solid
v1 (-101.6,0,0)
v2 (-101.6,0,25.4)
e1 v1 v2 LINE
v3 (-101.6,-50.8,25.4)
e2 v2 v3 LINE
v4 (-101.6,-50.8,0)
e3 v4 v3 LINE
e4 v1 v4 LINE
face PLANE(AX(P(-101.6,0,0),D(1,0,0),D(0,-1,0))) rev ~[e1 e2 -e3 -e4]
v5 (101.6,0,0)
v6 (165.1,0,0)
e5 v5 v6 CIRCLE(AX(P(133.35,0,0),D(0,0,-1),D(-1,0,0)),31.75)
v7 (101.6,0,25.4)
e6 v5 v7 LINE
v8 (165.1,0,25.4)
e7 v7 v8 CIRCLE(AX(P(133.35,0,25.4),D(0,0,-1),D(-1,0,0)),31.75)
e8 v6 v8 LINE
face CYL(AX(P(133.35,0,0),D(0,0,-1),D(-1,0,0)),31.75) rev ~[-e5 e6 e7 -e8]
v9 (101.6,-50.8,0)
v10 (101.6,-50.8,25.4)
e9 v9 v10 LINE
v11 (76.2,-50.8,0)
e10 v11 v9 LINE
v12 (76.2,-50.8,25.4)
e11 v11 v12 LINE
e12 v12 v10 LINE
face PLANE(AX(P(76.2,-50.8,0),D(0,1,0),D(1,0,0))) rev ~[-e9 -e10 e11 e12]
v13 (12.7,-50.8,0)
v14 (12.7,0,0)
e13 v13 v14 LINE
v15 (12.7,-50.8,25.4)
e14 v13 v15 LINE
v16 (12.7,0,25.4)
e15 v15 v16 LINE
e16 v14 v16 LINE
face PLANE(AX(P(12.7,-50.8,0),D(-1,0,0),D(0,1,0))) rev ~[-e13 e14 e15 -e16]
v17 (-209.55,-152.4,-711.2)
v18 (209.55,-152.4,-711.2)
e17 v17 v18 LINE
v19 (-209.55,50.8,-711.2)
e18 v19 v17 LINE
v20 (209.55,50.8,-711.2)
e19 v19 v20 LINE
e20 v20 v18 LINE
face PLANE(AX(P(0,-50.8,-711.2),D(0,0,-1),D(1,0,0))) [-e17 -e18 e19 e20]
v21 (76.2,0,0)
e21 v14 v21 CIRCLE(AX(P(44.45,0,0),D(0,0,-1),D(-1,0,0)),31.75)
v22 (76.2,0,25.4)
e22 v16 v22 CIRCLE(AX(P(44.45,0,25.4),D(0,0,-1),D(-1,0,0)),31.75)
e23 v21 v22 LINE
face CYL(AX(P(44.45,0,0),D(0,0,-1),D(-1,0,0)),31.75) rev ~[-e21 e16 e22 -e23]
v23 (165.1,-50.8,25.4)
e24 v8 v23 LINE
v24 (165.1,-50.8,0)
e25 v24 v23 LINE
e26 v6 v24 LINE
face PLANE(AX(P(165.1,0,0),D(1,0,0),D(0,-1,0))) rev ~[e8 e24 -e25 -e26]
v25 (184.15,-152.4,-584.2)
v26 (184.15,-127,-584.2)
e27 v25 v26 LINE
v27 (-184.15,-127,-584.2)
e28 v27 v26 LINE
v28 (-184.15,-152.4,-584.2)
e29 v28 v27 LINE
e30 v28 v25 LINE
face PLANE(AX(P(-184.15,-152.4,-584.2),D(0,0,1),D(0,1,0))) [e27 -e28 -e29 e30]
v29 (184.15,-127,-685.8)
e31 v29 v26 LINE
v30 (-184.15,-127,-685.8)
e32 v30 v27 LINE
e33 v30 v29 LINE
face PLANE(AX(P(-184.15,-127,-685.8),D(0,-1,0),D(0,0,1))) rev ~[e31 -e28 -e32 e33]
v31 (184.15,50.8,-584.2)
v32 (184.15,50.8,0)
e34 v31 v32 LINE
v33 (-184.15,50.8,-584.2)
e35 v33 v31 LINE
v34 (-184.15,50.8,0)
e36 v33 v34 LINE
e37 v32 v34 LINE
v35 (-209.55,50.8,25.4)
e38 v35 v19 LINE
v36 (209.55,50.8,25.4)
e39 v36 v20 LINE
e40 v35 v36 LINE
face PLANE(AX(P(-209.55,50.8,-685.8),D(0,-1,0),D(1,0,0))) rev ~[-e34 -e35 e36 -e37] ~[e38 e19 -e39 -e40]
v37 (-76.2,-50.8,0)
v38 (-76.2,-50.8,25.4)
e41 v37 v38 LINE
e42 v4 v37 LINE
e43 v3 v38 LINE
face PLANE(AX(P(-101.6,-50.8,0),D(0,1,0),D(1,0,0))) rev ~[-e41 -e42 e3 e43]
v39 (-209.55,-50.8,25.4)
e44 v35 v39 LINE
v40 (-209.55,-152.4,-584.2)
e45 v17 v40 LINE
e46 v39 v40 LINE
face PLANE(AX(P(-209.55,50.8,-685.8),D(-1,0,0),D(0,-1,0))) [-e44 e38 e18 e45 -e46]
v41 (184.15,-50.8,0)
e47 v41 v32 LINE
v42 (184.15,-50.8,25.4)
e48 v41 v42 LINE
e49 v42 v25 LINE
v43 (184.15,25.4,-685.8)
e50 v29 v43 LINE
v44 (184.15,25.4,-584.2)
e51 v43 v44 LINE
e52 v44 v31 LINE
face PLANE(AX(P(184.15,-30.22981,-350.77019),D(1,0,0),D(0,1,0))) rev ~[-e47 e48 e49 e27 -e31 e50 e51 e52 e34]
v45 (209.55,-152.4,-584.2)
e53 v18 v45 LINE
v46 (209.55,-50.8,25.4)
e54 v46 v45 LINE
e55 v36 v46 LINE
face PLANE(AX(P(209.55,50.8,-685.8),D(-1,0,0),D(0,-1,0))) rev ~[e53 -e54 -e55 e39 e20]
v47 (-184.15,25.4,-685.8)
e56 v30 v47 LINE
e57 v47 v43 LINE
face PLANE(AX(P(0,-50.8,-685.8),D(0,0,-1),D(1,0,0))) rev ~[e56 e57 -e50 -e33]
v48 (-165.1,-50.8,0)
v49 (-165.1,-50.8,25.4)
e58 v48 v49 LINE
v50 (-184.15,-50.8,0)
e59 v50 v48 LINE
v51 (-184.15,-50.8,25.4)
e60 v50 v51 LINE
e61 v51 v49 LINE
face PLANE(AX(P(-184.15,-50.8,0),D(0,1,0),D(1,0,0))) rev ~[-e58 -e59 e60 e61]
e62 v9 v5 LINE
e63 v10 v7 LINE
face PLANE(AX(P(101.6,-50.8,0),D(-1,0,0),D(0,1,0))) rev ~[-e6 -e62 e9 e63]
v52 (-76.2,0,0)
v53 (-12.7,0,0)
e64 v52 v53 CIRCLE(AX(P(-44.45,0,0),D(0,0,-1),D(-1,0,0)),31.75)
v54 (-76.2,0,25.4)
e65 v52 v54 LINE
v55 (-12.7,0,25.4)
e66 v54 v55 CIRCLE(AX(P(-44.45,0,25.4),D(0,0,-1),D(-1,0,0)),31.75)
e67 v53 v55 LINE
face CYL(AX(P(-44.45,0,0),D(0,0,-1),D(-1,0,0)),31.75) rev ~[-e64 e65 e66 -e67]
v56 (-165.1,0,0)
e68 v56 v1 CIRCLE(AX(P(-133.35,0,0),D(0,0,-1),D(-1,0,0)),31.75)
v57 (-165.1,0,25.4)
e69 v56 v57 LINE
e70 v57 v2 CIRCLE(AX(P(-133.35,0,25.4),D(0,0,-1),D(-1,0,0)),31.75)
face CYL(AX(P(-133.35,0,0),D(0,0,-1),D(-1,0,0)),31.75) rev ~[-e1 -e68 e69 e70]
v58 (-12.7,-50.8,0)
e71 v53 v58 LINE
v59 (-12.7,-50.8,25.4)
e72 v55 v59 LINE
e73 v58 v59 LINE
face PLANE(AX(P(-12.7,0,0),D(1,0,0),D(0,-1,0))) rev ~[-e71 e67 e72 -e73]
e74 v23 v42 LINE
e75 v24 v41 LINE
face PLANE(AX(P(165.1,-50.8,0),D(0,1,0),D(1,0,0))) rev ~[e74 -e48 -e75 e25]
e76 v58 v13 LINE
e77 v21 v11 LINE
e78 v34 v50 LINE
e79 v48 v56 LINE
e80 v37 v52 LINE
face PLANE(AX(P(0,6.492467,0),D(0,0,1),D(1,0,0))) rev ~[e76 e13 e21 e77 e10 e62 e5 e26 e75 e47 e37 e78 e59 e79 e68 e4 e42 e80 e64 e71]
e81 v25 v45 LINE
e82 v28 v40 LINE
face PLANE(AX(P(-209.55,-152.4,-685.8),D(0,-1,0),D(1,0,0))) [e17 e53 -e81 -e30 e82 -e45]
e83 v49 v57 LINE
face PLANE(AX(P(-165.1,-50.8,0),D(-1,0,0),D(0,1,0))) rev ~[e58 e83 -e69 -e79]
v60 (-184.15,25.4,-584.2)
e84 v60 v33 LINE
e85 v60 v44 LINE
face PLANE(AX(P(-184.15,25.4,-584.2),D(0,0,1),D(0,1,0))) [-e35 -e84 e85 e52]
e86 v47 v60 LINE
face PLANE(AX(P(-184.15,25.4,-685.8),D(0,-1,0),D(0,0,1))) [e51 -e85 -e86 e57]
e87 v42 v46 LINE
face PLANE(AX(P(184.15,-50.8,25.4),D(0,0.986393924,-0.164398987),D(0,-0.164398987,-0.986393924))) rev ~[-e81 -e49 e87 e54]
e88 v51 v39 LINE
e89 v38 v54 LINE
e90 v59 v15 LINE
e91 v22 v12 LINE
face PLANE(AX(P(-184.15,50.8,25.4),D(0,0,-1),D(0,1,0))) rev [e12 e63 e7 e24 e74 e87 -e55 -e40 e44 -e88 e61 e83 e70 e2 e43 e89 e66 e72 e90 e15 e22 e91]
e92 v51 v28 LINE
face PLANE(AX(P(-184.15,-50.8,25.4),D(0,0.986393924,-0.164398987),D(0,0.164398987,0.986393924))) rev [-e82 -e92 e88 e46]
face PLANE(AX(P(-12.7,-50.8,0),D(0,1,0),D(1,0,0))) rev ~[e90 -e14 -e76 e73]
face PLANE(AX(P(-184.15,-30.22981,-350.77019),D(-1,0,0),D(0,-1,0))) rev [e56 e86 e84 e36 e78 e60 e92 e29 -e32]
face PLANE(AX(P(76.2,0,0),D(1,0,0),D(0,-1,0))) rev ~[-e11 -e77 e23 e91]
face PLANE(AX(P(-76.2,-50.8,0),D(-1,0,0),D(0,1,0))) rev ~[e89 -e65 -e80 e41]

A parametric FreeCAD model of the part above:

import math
import FreeCAD as App
import Part
import Sketcher
Q = App.Units.Quantity


def add_polygon(sketch, points):
    """Adds a closed chain of lines whose ends are joined by coincident constraints."""
    first, n = sketch.GeometryCount, len(points)
    for a, b in zip(points, points[1:] + points[:1]):
        sketch.addGeometry(Part.LineSegment(App.Vector(*a, 0), App.Vector(*b, 0)), False)
    for i in range(n):
        sketch.addConstraint(Sketcher.Constraint("Coincident", first + i, 2, first + (i + 1) % n, 1))

doc = App.newDocument("Part")
body = doc.addObject("PartDesign::Body", "Body")

sketch1 = body.newObject("Sketcher::SketchObject", "Sketch")
sketch1.AttachmentSupport = (doc.getObject("XY_Plane"), [""])
sketch1.MapMode = "FlatFace"
sketch1.addGeometry([
    Part.LineSegment(App.Vector(184, -51, 0), App.Vector(184, 51, 0)),
    Part.LineSegment(App.Vector(184, 51, 0), App.Vector(-184, 51, 0)),
    Part.LineSegment(App.Vector(-184, 51, 0), App.Vector(-184, -51, 0)),
    Part.LineSegment(App.Vector(-184, -51, 0), App.Vector(-165, -51, 0)),
    Part.LineSegment(App.Vector(-165, -51, 0), App.Vector(-165, 0, 0)),
    Part.ArcOfCircle(Part.Circle(App.Vector(-133, 0, 0), App.Vector(0, 0, 1), 32), math.radians(0), math.radians(180)),
    Part.LineSegment(App.Vector(-102, 0, 0), App.Vector(-102, -51, 0)),
    Part.LineSegment(App.Vector(-102, -51, 0), App.Vector(-76, -51, 0)),
    Part.LineSegment(App.Vector(-76, -51, 0), App.Vector(-76, 0, 0)),
    Part.ArcOfCircle(Part.Circle(App.Vector(-44, 0, 0), App.Vector(0, 0, 1), 32), math.radians(0), math.radians(180)),
    Part.LineSegment(App.Vector(-13, 0, 0), App.Vector(-13, -51, 0)),
    Part.LineSegment(App.Vector(-13, -51, 0), App.Vector(13, -51, 0)),
    Part.LineSegment(App.Vector(13, -51, 0), App.Vector(13, 0, 0)),
    Part.ArcOfCircle(Part.Circle(App.Vector(44, 0, 0), App.Vector(0, 0, 1), 32), math.radians(0), math.radians(180)),
    Part.LineSegment(App.Vector(76, 0, 0), App.Vector(76, -51, 0)),
    Part.LineSegment(App.Vector(76, -51, 0), App.Vector(102, -51, 0)),
    Part.LineSegment(App.Vector(102, -51, 0), App.Vector(102, 0, 0)),
    Part.ArcOfCircle(Part.Circle(App.Vector(133, 0, 0), App.Vector(0, 0, 1), 32), math.radians(0), math.radians(180)),
    Part.LineSegment(App.Vector(165, 0, 0), App.Vector(165, -51, 0)),
    Part.LineSegment(App.Vector(165, -51, 0), App.Vector(184, -51, 0)),
], False)
sketch1.addConstraint([
    Sketcher.Constraint("Coincident", 0, 2, 1, 1),
    Sketcher.Constraint("Coincident", 1, 2, 2, 1),
    Sketcher.Constraint("Coincident", 2, 2, 3, 1),
    Sketcher.Constraint("Coincident", 3, 2, 4, 1),
    Sketcher.Constraint("Tangent", 4, 2, 5, 2),
    Sketcher.Constraint("Tangent", 5, 1, 6, 1),
    Sketcher.Constraint("Coincident", 6, 2, 7, 1),
    Sketcher.Constraint("Coincident", 7, 2, 8, 1),
    Sketcher.Constraint("Tangent", 8, 2, 9, 2),
    Sketcher.Constraint("Tangent", 9, 1, 10, 1),
    Sketcher.Constraint("Coincident", 10, 2, 11, 1),
    Sketcher.Constraint("Coincident", 11, 2, 12, 1),
    Sketcher.Constraint("Tangent", 12, 2, 13, 2),
    Sketcher.Constraint("Tangent", 13, 1, 14, 1),
    Sketcher.Constraint("Coincident", 14, 2, 15, 1),
    Sketcher.Constraint("Coincident", 15, 2, 16, 1),
    Sketcher.Constraint("Tangent", 16, 2, 17, 2),
    Sketcher.Constraint("Tangent", 17, 1, 18, 1),
    Sketcher.Constraint("Coincident", 18, 2, 19, 1),
    Sketcher.Constraint("Coincident", 19, 2, 0, 1),
    Sketcher.Constraint("Vertical", 0),
    Sketcher.Constraint("Horizontal", 1),
    Sketcher.Constraint("Vertical", 2),
    Sketcher.Constraint("Horizontal", 3),
    Sketcher.Constraint("Vertical", 4),
    Sketcher.Constraint("Vertical", 6),
    Sketcher.Constraint("Horizontal", 7),
    Sketcher.Constraint("Vertical", 8),
    Sketcher.Constraint("Vertical", 10),
    Sketcher.Constraint("Horizontal", 11),
    Sketcher.Constraint("Vertical", 12),
    Sketcher.Constraint("Vertical", 14),
    Sketcher.Constraint("Horizontal", 15),
    Sketcher.Constraint("Vertical", 16),
    Sketcher.Constraint("Vertical", 18),
    Sketcher.Constraint("Horizontal", 19),
    Sketcher.Constraint("Equal", 5, 9),
    Sketcher.Constraint("Equal", 9, 13),
    Sketcher.Constraint("Equal", 13, 17),
    Sketcher.Constraint("Symmetric", 9, 3, 13, 3, -1, 1),
    Sketcher.Constraint("Symmetric", 5, 3, 17, 3, -1, 1),
    Sketcher.Constraint("Symmetric", 0, 2, 2, 2, -1, 1),
    Sketcher.Constraint("PointOnObject", 5, 3, -1),
    Sketcher.Constraint("PointOnObject", 9, 3, -1),
    Sketcher.Constraint("Horizontal", 3, 2, 6, 2),
    Sketcher.Constraint("Horizontal", 7, 2, 10, 2),
    Sketcher.Constraint("Horizontal", 11, 2, 14, 2),
    Sketcher.Constraint("Horizontal", 15, 2, 18, 2),
    Sketcher.Constraint("Equal", 7, 11),
    Sketcher.Constraint("DistanceX", 7, 1, 7, 2, Q("1 in")),
    Sketcher.Constraint("DistanceY", 0, 1, 0, 2, Q("4 in")),
    Sketcher.Constraint("Radius", 5, Q("1.25 in")),
    Sketcher.Constraint("DistanceX", 1, 2, 1, 1, Q("14.5 in")),
])
pad1 = body.newObject("PartDesign::Pad", "Pad")
pad1.Profile = sketch1
pad1.Length = Q("1 in")

sketch2 = body.newObject("Sketcher::SketchObject", "Sketch001")
sketch2.AttachmentSupport = (doc.getObject("YZ_Plane"), [""])
sketch2.MapMode = "FlatFace"
sketch2.AttachmentOffset = App.Placement(App.Vector(0, 0, 7.25 * 25.4), App.Rotation())
add_polygon(sketch2, [(51, -686), (51, 25), (-51, 25), (-152, -584), (-152, -686)])
sketch2.addConstraint([
    Sketcher.Constraint("Vertical", 0),
    Sketcher.Constraint("Horizontal", 1),
    Sketcher.Constraint("Vertical", 3),
    Sketcher.Constraint("Horizontal", 4),
    Sketcher.Constraint("Equal", 1, 3),
    Sketcher.Constraint("DistanceX", 1, 2, 1, 1, Q("4 in")),
    Sketcher.Constraint("DistanceX", 4, 1, 4, 2, Q("8 in")),
    Sketcher.Constraint("DistanceY", 0, 1, 0, 2, Q("28 in")),
    Sketcher.Constraint("DistanceX", -1, 1, 0, 2, Q("2 in")),
    Sketcher.Constraint("DistanceY", -1, 1, 0, 2, Q("1 in")),
])
pad2 = body.newObject("PartDesign::Pad", "Pad001")
pad2.Profile = sketch2
pad2.Length = Q("1 in")
body2 = doc.addObject("PartDesign::Body", "Body001")
doc.recompute()

body2.BaseFeature = body
doc.recompute()

mirroring = doc.addObject("Part::Mirroring", "Mirroring")
mirroring.Source = body
mirroring.Base = App.Vector(0, 0, 0)
mirroring.Normal = App.Vector(1, 0, 0)
body3 = doc.addObject("PartDesign::Body", "Body002")
body3.BaseFeature = mirroring
boolean = body2.newObject("PartDesign::Boolean", "Boolean")
boolean.Type = "Fuse"
boolean.addObjects([body3])
doc.recompute()

sketch3 = body2.newObject("Sketcher::SketchObject", "Sketch002")
sketch3.AttachmentSupport = (doc.getObject("YZ_Plane001"), [""])
sketch3.MapMode = "FlatFace"
sketch3.AttachmentOffset = App.Placement(App.Vector(0, 0, -7.25 * 25.4), App.Rotation())
add_polygon(sketch3, [(-152, -584), (-152, -686), (-127, -686), (-127, -584)])
add_polygon(sketch3, [(25, -584), (25, -686), (51, -686), (51, -584)])
sketch3.addConstraint([
    Sketcher.Constraint("Vertical", 0),
    Sketcher.Constraint("Horizontal", 1),
    Sketcher.Constraint("Vertical", 2),
    Sketcher.Constraint("Horizontal", 3),
    Sketcher.Constraint("Vertical", 4),
    Sketcher.Constraint("Horizontal", 5),
    Sketcher.Constraint("Vertical", 6),
    Sketcher.Constraint("Horizontal", 7),
    Sketcher.Constraint("Horizontal", 1, 2, 4, 2),
    Sketcher.Constraint("Horizontal", 3, 2, 6, 2),
    Sketcher.Constraint("Equal", 3, 5),
    Sketcher.Constraint("DistanceX", 1, 1, 1, 2, Q("1 in")),
    Sketcher.Constraint("DistanceY", 0, 2, 0, 1, Q("4 in")),
    Sketcher.Constraint("DistanceX", 0, 2, -1, 1, Q("6 in")),
    Sketcher.Constraint("DistanceY", 0, 2, -1, 1, Q("27 in")),
    Sketcher.Constraint("DistanceX", -1, 1, 4, 2, Q("1 in")),
])
pad3 = body2.newObject("PartDesign::Pad", "Pad002")
pad3.Profile = sketch3
pad3.Type = "UpToLast"

sketch4 = body2.newObject("Sketcher::SketchObject", "Sketch003")
sketch4.AttachmentSupport = (doc.getObject("XY_Plane001"), [""])
sketch4.MapMode = "FlatFace"
sketch4.AttachmentOffset = App.Placement(App.Vector(0, 0, -27 * 25.4), App.Rotation())
add_polygon(sketch4, [(-210, -152), (-210, 51), (210, 51), (210, -152)])
sketch4.addConstraint([
    Sketcher.Constraint("Vertical", 0),
    Sketcher.Constraint("Horizontal", 1),
    Sketcher.Constraint("Vertical", 2),
    Sketcher.Constraint("Horizontal", 3),
    Sketcher.Constraint("DistanceY", 0, 1, 0, 2, Q("8 in")),
    Sketcher.Constraint("DistanceX", 1, 1, 1, 2, Q("16.5 in")),
    Sketcher.Constraint("DistanceY", -1, 1, 0, 2, Q("2 in")),
    Sketcher.Constraint("DistanceX", 0, 2, -1, 1, Q("8.25 in")),
])
pad4 = body2.newObject("PartDesign::Pad", "Pad003")
pad4.Profile = sketch4
pad4.Length = Q("1 in")
pad4.Reversed = True
mirroring.Visibility = False

doc.recompute()
